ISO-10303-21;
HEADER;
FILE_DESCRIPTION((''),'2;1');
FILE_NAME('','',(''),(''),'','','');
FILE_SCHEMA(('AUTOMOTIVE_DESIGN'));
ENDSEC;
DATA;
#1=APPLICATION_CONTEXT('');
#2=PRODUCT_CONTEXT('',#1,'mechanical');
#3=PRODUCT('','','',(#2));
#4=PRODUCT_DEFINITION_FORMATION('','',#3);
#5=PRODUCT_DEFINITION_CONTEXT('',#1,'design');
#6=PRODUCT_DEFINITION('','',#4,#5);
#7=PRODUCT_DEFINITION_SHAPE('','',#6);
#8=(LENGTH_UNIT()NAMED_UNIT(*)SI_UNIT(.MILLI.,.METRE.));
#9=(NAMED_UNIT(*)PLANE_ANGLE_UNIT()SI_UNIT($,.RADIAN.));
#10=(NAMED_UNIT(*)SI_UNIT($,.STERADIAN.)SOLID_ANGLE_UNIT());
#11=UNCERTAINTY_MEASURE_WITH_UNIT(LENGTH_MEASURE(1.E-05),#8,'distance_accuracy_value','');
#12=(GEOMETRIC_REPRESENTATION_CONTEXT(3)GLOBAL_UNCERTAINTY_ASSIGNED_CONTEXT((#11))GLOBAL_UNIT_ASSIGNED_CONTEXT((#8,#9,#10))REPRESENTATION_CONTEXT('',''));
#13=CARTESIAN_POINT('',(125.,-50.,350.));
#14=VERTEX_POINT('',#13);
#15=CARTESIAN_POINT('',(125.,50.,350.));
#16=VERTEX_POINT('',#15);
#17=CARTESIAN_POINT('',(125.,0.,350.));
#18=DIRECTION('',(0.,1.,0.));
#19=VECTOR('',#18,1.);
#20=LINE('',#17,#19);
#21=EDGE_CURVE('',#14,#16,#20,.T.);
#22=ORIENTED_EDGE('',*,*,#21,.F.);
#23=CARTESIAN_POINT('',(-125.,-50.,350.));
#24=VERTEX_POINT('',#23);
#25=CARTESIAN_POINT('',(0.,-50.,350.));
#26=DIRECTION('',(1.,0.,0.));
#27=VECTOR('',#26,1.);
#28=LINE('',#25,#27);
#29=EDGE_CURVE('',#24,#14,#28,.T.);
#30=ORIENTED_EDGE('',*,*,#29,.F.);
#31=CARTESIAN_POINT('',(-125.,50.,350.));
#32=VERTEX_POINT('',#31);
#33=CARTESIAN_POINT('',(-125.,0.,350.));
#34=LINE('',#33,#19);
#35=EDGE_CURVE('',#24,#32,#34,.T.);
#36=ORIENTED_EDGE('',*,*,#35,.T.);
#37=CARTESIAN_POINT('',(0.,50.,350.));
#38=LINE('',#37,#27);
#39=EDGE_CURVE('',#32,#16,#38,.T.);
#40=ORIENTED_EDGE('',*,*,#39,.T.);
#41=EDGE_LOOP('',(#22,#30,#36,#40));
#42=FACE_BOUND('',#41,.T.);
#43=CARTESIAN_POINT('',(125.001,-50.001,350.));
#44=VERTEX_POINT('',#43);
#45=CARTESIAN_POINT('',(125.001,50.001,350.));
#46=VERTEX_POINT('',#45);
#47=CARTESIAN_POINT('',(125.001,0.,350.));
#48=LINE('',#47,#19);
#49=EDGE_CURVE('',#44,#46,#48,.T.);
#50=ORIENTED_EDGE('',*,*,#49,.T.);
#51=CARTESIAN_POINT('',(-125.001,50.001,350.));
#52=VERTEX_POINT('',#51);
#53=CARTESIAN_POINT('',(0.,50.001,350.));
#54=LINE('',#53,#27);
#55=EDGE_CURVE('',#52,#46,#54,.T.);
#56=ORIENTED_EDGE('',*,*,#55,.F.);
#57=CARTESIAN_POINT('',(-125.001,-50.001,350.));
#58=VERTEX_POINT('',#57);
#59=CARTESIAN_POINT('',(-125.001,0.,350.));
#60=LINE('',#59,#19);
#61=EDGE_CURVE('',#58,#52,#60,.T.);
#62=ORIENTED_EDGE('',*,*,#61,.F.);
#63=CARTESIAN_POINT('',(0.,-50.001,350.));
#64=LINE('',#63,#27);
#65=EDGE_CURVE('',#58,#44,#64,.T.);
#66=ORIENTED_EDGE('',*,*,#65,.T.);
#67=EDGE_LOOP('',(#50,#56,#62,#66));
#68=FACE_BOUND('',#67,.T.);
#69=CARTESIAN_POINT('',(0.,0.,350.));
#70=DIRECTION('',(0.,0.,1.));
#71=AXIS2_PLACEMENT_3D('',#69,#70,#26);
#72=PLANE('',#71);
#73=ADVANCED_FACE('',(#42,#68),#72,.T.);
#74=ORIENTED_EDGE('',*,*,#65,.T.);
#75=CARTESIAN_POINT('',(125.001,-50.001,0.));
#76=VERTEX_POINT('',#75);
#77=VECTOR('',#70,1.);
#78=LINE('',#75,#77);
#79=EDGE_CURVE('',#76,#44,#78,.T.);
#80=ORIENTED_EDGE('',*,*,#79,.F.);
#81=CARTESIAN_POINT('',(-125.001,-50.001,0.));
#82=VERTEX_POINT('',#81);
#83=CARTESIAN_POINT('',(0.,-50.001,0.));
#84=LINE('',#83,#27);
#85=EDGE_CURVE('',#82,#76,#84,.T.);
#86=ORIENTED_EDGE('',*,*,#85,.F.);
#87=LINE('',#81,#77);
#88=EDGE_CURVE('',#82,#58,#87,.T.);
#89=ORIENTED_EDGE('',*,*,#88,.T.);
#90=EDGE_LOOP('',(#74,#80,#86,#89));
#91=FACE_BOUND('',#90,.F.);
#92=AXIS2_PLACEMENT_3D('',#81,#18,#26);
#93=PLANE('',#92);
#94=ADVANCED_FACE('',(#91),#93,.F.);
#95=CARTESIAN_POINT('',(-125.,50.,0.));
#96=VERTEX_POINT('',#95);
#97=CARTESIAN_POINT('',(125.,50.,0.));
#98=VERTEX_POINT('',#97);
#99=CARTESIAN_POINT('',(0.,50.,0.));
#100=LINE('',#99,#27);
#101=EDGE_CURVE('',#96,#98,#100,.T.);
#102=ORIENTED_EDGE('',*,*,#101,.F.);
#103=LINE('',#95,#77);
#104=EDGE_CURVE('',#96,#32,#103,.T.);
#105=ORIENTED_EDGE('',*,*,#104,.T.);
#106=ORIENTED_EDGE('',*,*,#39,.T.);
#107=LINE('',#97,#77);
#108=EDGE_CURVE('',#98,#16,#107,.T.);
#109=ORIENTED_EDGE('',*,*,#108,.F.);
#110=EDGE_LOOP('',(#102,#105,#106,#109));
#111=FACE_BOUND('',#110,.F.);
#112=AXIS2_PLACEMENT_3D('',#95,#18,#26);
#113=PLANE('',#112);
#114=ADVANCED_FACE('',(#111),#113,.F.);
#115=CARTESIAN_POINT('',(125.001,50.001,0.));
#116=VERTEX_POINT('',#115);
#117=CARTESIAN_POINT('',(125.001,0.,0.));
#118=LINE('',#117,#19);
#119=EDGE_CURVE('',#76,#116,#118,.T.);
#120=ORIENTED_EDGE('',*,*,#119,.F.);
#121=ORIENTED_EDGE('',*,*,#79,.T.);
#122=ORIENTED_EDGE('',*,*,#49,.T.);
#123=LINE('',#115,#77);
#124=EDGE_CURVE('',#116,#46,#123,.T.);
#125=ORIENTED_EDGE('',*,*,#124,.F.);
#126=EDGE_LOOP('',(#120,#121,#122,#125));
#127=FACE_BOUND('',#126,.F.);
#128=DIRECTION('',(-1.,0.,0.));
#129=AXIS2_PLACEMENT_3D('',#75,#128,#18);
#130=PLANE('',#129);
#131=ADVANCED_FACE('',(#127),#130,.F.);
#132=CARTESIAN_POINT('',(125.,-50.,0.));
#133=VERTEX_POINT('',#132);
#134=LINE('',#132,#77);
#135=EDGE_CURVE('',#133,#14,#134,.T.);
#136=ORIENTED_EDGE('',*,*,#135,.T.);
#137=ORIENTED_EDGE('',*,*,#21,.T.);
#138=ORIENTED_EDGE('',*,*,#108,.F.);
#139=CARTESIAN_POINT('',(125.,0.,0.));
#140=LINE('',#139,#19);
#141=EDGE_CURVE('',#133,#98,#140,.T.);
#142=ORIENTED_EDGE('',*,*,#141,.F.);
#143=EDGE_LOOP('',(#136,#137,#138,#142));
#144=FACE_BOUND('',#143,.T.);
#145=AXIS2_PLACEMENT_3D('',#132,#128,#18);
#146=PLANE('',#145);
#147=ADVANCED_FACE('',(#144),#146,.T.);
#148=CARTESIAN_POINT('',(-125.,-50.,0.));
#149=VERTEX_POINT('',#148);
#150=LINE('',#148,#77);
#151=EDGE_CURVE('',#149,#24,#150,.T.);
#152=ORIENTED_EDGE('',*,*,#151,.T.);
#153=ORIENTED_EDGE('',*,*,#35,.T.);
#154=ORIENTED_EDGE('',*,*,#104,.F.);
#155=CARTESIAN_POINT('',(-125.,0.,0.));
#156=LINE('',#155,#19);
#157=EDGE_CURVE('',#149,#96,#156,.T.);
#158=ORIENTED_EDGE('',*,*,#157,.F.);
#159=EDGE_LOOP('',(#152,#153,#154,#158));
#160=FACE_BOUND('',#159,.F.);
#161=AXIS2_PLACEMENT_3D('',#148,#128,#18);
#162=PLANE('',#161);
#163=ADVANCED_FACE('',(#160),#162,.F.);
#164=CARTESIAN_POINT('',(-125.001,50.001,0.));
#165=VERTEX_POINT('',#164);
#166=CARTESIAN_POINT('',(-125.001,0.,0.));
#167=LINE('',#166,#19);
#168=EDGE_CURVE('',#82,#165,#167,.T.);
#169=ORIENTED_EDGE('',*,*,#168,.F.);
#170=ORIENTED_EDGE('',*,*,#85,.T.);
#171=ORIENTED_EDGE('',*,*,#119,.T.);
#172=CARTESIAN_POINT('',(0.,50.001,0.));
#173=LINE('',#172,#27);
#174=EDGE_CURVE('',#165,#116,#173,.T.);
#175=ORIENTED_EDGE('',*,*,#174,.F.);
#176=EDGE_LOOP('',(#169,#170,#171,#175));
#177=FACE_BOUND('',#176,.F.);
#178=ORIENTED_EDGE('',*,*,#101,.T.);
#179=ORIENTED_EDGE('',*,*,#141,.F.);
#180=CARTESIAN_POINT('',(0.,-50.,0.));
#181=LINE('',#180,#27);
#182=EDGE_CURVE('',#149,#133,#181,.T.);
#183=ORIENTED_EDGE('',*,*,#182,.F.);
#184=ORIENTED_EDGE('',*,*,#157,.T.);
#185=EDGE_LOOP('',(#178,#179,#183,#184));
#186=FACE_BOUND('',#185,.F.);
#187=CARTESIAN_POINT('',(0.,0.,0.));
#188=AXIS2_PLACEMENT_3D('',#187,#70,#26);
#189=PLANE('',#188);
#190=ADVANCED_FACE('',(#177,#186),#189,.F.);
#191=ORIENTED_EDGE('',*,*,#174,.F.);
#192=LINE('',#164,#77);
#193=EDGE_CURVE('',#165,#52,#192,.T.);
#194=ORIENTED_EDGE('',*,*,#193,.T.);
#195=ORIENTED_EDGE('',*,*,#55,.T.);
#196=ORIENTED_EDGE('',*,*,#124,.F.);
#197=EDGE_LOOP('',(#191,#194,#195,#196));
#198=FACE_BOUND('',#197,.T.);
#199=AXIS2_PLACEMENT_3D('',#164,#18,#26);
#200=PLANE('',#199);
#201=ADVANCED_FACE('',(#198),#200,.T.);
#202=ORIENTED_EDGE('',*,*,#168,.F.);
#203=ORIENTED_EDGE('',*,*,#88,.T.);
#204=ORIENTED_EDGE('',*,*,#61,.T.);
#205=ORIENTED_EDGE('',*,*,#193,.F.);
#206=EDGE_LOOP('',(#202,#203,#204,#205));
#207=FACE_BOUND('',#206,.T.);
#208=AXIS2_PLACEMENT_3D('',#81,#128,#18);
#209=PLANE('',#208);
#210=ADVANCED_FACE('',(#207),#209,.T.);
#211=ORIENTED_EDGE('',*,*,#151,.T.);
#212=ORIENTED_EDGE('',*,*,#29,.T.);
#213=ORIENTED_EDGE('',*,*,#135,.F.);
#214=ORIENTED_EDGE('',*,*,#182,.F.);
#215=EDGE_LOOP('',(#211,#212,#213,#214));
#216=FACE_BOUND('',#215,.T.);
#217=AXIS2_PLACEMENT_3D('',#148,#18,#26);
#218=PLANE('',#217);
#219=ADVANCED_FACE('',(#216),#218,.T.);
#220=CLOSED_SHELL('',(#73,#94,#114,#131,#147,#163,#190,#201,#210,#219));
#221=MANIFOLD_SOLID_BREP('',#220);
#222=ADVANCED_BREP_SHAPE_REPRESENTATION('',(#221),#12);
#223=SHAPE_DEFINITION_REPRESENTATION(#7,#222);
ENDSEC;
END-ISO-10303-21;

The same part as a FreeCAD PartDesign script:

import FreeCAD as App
import Part
import Sketcher
from FreeCAD import Vector


def add_polygon(sketch, points):
    """Adds a closed chain of lines whose ends are joined by coincident constraints."""
    first, n = sketch.GeometryCount, len(points)
    for a, b in zip(points, points[1:] + points[:1]):
        sketch.addGeometry(Part.LineSegment(App.Vector(*a, 0), App.Vector(*b, 0)), False)
    for i in range(n):
        sketch.addConstraint(Sketcher.Constraint("Coincident", first + i, 2, first + (i + 1) % n, 1))

doc = App.newDocument("Part")
body = doc.addObject("PartDesign::Body", "Body")

sketch1 = doc.addObject("Sketcher::SketchObject", "Sketch")
body.addObject(sketch1)
sketch1.AttachmentSupport = (doc.XY_Plane, [""])
sketch1.MapMode = "FlatFace"
add_polygon(sketch1, [(-125, 50), (-125, -50), (125, -50), (125, 50)])
add_polygon(sketch1, [(125, -50), (-125, -50), (-125, 50), (125, 50)])
sketch1.addConstraint([
    Sketcher.Constraint("Vertical", 0),
    Sketcher.Constraint("Horizontal", 1),
    Sketcher.Constraint("Vertical", 2),
    Sketcher.Constraint("Horizontal", 3),
    Sketcher.Constraint("Horizontal", 4),
    Sketcher.Constraint("Vertical", 5),
    Sketcher.Constraint("Horizontal", 6),
    Sketcher.Constraint("Vertical", 7),
    Sketcher.Constraint("Symmetric", 0, 2, 2, 2, -1, 1),
    Sketcher.Constraint("Symmetric", 4, 2, 6, 2, -1, 1),
    Sketcher.Constraint("DistanceX", 4, 2, 4, 1, 250.0),
    Sketcher.Constraint("DistanceY", 5, 1, 5, 2, 100.0),
    Sketcher.Constraint("DistanceX", 1, 1, 1, 2, 250.002),
    Sketcher.Constraint("DistanceY", 0, 2, 0, 1, 100.002),
])
pad1 = doc.addObject("PartDesign::Pad", "Pad")
body.addObject(pad1)
pad1.Profile = sketch1
pad1.Length = 350

doc.recompute()
